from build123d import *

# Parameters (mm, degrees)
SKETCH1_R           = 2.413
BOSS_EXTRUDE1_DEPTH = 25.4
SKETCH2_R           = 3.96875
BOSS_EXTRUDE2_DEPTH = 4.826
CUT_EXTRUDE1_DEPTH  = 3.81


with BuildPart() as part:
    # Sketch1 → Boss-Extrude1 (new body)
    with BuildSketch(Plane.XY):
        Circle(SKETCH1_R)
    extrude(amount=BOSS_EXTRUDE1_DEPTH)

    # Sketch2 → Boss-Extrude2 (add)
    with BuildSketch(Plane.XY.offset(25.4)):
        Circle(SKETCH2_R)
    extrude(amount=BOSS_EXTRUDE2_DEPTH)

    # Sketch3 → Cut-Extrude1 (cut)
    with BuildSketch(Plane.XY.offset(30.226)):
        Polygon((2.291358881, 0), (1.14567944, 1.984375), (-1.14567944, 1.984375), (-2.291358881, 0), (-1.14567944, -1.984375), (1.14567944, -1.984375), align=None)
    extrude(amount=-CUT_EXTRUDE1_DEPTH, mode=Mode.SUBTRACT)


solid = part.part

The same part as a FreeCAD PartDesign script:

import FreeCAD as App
import Part
import Sketcher
from FreeCAD import Vector
Q = App.Units.Quantity


def add_polygon(sketch, points):
    """Adds a closed chain of lines whose ends are joined by coincident constraints."""
    first, n = sketch.GeometryCount, len(points)
    for a, b in zip(points, points[1:] + points[:1]):
        sketch.addGeometry(Part.LineSegment(App.Vector(*a, 0), App.Vector(*b, 0)), False)
    for i in range(n):
        sketch.addConstraint(Sketcher.Constraint("Coincident", first + i, 2, first + (i + 1) % n, 1))

doc = App.newDocument("Part")
body = doc.addObject("PartDesign::Body", "Body")

# Sketch on XY plane
sketch1 = body.newObject("Sketcher::SketchObject", "Sketch")
sketch1.AttachmentSupport = (doc.getObject("XY_Plane"), [""])
sketch1.MapMode = "FlatFace"
sketch1.addGeometry(Part.Circle(Vector(0, 0, 0), Vector(0, 0, 1), 2.413), False)
sketch1.addConstraint([
    Sketcher.Constraint("Coincident", 0, 3, -1, 1),
    Sketcher.Constraint("Diameter", 0, Q("0.19 in")),
])
pad1 = body.newObject("PartDesign::Pad", "Pad")
pad1.Profile = sketch1
pad1.Length = Q("1 in")

# Sketch on XY plane
sketch2 = body.newObject("Sketcher::SketchObject", "Sketch001")
sketch2.AttachmentSupport = (doc.getObject("XY_Plane"), [""])
sketch2.MapMode = "FlatFace"
sketch2.AttachmentOffset = App.Placement(Vector(0, 0, 1 * 25.4), App.Rotation())
sketch2.addGeometry(Part.Circle(Vector(0, 0, 0), Vector(0, 0, 1), 3.96875), False)
sketch2.addConstraint([
    Sketcher.Constraint("Coincident", 0, 3, -1, 1),
    Sketcher.Constraint("Diameter", 0, Q("0.3125 in")),
])
pad2 = body.newObject("PartDesign::Pad", "Pad001")
pad2.Profile = sketch2
pad2.Length = Q("0.19 in")

# Sketch on XY plane
sketch3 = body.newObject("Sketcher::SketchObject", "Sketch002")
sketch3.AttachmentSupport = (doc.getObject("XY_Plane"), [""])
sketch3.MapMode = "FlatFace"
sketch3.AttachmentOffset = App.Placement(Vector(0, 0, 1.19 * 25.4), App.Rotation())
add_polygon(sketch3, [(2.291359, 0), (1.145679, 1.984375), (-1.145679, 1.984375), (-2.291359, 0), (-1.145679, -1.984375), (1.145679, -1.984375)])  # lines 0-5
sketch3.addConstraint([
    Sketcher.Constraint("Horizontal", 1),
    Sketcher.Constraint("Horizontal", 4),
    Sketcher.Constraint("Symmetric", 0, 2, 3, 2, -1, 1),
    Sketcher.Constraint("Symmetric", 2, 2, 5, 2, -1, 1),
    Sketcher.Constraint("PointOnObject", 2, 2, -1),
    Sketcher.Constraint("Parallel", 2, 5),
    Sketcher.Constraint("Vertical", 1, 2, 3, 2),
    Sketcher.Constraint("Angle", 0, Q("120 deg")),
    Sketcher.Constraint("DistanceY", -1, 1, 0, 2, Q("0.078125 in")),
    Sketcher.Constraint("DistanceX", 1, 2, 1, 1, 2.291359),
])
pocket1 = body.newObject("PartDesign::Pocket", "Pocket")
pocket1.Profile = sketch3
pocket1.Length = Q("0.15 in")

doc.recompute()
